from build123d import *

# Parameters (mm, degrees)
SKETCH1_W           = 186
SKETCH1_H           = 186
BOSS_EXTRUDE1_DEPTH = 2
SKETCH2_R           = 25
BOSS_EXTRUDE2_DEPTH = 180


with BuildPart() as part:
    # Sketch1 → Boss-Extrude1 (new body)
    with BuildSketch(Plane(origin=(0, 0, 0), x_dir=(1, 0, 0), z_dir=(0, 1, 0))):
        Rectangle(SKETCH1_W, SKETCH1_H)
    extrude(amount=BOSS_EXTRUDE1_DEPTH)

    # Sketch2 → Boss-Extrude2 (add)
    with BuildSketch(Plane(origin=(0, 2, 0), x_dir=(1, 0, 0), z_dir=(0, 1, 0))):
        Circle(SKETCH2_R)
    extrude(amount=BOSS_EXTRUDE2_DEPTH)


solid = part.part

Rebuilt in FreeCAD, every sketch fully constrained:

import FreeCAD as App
import Part
import Sketcher

V = App.Vector
Q = App.Units.Quantity

doc = App.newDocument("Part")
body = doc.addObject("PartDesign::Body", "Body")

# Sketch on XZ plane
sketch1 = body.newObject("Sketcher::SketchObject", "Sketch")
sketch1.AttachmentSupport = (doc.getObject("XZ_Plane"), [""])
sketch1.MapMode = "FlatFace"
sketch1.addGeometry(Part.LineSegment(V(-93, -93, 0), V(-93, 93, 0)), False)
sketch1.addGeometry(Part.LineSegment(V(-93, 93, 0), V(93, 93, 0)), False)
sketch1.addGeometry(Part.LineSegment(V(93, 93, 0), V(93, -93, 0)), False)
sketch1.addGeometry(Part.LineSegment(V(93, -93, 0), V(-93, -93, 0)), False)
sketch1.addConstraint(Sketcher.Constraint("Coincident", 0, 2, 1, 1))
sketch1.addConstraint(Sketcher.Constraint("Coincident", 1, 2, 2, 1))
sketch1.addConstraint(Sketcher.Constraint("Coincident", 2, 2, 3, 1))
sketch1.addConstraint(Sketcher.Constraint("Coincident", 3, 2, 0, 1))
sketch1.addConstraint(Sketcher.Constraint("Vertical", 0))
sketch1.addConstraint(Sketcher.Constraint("Horizontal", 1))
sketch1.addConstraint(Sketcher.Constraint("Vertical", 2))
sketch1.addConstraint(Sketcher.Constraint("Horizontal", 3))
sketch1.addConstraint(Sketcher.Constraint("Symmetric", 0, 2, 2, 2, -1, 1))
sketch1.addConstraint(Sketcher.Constraint("Equal", 3, 0))
sketch1.addConstraint(Sketcher.Constraint("DistanceX", 1, 1, 1, 2, Q("186 mm")))
pad1 = body.newObject("PartDesign::Pad", "Pad")
pad1.Profile = sketch1
pad1.Length = 2
pad1.Reversed = True

# Sketch on XZ plane
sketch2 = body.newObject("Sketcher::SketchObject", "Sketch001")
sketch2.AttachmentSupport = (doc.getObject("XZ_Plane"), [""])
sketch2.MapMode = "FlatFace"
sketch2.AttachmentOffset = App.Placement(V(0, 0, -2), App.Rotation())
sketch2.addGeometry(Part.Circle(V(0, 0, 0), V(0, 0, 1), 25), False)
sketch2.addConstraint(Sketcher.Constraint("Coincident", 0, 3, -1, 1))
sketch2.addConstraint(Sketcher.Constraint("Diameter", 0, Q("50 mm")))
pad2 = body.newObject("PartDesign::Pad", "Pad001")
pad2.Profile = sketch2
pad2.Length = 180
pad2.Reversed = True

doc.recompute()
